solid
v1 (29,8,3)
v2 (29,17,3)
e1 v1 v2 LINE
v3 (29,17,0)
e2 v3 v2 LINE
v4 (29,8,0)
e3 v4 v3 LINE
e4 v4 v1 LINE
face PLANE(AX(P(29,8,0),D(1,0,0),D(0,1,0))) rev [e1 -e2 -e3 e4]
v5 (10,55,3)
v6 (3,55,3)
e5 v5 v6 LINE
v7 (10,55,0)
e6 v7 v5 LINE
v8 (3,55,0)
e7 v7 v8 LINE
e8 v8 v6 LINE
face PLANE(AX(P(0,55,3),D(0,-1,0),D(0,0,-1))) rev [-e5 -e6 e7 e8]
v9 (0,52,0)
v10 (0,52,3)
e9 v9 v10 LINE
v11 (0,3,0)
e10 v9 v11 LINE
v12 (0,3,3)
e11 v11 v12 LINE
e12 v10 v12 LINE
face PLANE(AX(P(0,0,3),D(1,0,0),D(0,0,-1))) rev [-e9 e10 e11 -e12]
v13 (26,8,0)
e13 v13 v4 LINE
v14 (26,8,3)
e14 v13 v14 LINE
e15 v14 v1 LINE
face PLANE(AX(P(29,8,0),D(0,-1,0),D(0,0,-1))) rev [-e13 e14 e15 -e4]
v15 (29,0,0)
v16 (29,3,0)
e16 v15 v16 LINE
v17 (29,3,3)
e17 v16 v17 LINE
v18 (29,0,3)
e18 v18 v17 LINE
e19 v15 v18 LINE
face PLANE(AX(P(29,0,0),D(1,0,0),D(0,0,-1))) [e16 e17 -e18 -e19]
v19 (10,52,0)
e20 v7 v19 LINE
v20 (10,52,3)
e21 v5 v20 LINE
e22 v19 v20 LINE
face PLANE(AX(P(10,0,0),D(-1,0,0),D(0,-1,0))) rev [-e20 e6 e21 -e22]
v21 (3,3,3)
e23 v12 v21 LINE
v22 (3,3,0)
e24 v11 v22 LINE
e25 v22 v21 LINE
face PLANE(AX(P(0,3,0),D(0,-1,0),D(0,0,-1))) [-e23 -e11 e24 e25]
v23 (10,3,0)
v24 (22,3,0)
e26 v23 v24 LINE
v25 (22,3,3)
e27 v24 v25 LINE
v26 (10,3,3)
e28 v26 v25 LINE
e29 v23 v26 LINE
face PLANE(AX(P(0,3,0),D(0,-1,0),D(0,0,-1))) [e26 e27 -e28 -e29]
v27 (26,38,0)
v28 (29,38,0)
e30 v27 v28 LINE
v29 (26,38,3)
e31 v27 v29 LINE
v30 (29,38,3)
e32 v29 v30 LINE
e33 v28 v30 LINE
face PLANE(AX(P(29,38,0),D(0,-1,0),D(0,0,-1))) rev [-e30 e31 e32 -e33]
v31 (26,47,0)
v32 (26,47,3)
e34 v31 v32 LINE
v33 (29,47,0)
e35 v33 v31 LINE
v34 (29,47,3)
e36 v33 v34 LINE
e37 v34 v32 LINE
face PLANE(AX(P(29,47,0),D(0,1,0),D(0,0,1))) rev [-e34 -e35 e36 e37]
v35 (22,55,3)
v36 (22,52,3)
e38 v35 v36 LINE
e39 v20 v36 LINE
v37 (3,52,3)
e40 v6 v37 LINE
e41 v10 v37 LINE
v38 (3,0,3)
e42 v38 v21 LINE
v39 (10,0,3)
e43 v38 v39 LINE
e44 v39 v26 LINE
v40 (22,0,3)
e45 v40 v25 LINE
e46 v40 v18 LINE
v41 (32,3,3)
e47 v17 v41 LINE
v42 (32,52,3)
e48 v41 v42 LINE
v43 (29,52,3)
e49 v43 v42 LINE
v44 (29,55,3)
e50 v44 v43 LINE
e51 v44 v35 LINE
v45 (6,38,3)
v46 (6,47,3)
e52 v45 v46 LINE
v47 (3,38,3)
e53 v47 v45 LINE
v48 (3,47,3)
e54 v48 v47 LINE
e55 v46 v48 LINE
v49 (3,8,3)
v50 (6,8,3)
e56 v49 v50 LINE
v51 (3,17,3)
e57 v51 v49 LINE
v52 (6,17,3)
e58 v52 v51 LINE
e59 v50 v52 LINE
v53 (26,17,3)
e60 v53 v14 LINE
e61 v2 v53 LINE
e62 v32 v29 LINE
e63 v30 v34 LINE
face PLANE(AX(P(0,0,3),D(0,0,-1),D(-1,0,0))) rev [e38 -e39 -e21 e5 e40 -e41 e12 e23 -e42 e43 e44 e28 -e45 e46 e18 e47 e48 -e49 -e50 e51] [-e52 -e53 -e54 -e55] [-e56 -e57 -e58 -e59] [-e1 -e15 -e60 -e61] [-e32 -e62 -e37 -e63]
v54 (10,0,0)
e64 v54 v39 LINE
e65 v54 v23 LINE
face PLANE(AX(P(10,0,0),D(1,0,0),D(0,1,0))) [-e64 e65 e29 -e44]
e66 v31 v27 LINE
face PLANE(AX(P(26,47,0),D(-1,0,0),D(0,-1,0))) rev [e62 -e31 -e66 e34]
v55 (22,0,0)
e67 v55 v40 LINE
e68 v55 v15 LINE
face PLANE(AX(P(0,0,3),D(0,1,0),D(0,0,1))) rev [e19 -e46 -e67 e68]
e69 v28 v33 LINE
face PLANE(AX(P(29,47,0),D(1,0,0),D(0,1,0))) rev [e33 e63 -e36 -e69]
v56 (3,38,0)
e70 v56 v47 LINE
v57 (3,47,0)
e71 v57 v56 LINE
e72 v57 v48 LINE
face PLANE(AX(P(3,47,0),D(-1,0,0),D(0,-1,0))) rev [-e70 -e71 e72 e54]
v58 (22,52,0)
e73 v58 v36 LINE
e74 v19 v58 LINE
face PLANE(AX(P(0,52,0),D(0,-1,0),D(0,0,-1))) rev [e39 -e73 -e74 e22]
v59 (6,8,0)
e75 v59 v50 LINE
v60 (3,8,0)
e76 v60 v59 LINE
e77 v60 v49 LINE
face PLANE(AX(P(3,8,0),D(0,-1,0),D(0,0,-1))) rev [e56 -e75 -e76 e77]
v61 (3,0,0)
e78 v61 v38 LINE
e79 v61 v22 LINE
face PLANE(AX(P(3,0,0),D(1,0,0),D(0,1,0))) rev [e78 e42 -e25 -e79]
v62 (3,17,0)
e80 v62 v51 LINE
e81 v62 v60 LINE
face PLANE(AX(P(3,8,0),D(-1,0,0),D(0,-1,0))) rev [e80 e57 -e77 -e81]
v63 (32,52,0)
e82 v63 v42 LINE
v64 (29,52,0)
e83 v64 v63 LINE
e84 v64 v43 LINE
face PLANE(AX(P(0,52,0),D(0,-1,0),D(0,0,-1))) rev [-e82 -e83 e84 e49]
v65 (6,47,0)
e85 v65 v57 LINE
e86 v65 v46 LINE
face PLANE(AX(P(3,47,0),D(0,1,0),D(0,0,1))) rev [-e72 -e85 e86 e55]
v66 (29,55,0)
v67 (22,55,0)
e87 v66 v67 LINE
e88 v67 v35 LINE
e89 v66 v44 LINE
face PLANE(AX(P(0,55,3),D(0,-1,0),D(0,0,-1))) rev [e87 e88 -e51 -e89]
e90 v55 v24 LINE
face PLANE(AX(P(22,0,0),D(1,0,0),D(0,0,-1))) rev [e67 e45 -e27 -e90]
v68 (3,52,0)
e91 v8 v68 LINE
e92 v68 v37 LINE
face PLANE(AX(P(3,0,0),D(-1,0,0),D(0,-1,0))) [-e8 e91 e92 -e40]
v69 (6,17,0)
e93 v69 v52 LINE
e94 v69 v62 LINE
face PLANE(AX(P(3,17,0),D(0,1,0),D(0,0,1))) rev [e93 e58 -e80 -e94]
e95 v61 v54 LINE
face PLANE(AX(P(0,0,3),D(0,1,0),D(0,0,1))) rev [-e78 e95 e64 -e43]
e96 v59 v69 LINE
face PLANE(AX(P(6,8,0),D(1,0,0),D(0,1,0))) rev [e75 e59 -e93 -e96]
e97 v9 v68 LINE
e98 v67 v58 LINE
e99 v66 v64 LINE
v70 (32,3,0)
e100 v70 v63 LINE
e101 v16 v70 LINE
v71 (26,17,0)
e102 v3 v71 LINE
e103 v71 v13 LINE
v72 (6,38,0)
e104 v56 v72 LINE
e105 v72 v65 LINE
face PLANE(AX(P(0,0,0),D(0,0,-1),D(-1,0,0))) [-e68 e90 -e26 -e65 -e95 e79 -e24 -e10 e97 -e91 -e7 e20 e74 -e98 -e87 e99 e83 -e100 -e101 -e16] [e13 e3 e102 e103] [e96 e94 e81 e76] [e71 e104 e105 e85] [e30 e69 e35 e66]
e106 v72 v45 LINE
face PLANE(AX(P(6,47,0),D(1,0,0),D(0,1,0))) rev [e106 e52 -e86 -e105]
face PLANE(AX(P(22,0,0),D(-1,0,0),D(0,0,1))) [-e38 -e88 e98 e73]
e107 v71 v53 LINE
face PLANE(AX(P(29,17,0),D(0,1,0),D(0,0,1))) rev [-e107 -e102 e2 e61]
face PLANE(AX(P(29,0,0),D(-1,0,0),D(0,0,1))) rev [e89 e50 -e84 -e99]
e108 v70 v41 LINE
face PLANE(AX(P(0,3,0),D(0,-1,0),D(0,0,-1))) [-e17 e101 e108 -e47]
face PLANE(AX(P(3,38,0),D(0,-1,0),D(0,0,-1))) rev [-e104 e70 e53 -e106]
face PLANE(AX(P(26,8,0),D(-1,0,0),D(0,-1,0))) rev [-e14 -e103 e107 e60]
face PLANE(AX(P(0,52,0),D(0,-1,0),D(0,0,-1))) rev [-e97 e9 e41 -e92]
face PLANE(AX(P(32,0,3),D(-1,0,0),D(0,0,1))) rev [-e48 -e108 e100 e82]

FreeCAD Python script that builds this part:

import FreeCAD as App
import Part
import Sketcher

V = App.Vector
Q = App.Units.Quantity


def add_polygon(sketch, points):
    """Adds a closed chain of lines whose ends are joined by coincident constraints."""
    first, n = sketch.GeometryCount, len(points)
    for a, b in zip(points, points[1:] + points[:1]):
        sketch.addGeometry(Part.LineSegment(App.Vector(*a, 0), App.Vector(*b, 0)), False)
    for i in range(n):
        sketch.addConstraint(Sketcher.Constraint("Coincident", first + i, 2, first + (i + 1) % n, 1))

doc = App.newDocument("Part")
body = doc.addObject("PartDesign::Body", "Body")

sketch1 = body.newObject("Sketcher::SketchObject", "Sketch")
sketch1.AttachmentSupport = (doc.getObject("XY_Plane"), [""])
sketch1.MapMode = "FlatFace"
add_polygon(sketch1, [(0, 55), (0, 0), (32, 0), (32, 55)])
sketch1.addConstraint(Sketcher.Constraint("Vertical", 0))
sketch1.addConstraint(Sketcher.Constraint("Horizontal", 1))
sketch1.addConstraint(Sketcher.Constraint("Vertical", 2))
sketch1.addConstraint(Sketcher.Constraint("Horizontal", 3))
sketch1.addConstraint(Sketcher.Constraint("Coincident", 0, 2, -1, 1))
sketch1.addConstraint(Sketcher.Constraint("DistanceX", 1, 1, 1, 2, Q("32 mm")))
sketch1.addConstraint(Sketcher.Constraint("DistanceY", 0, 2, 0, 1, Q("55 mm")))
pad1 = body.newObject("PartDesign::Pad", "Pad")
pad1.Profile = sketch1
pad1.Length = 3

sketch2 = body.newObject("Sketcher::SketchObject", "Sketch001")
sketch2.AttachmentSupport = (doc.getObject("XY_Plane"), [""])
sketch2.MapMode = "FlatFace"
sketch2.AttachmentOffset = App.Placement(V(0, 0, 3), App.Rotation())
add_polygon(sketch2, [(0, 55), (0, 52), (3, 52), (3, 55)])
add_polygon(sketch2, [(10, 55), (10, 52), (22, 52), (22, 55)])
add_polygon(sketch2, [(29, 55), (29, 52), (32, 52), (32, 55)])
add_polygon(sketch2, [(0, 3), (0, 0), (3, 0), (3, 3)])
add_polygon(sketch2, [(10, 3), (10, 0), (22, 0), (22, 3)])
add_polygon(sketch2, [(29, 3), (29, 0), (32, 0), (32, 3)])
sketch2.addConstraint(Sketcher.Constraint("Vertical", 0))
sketch2.addConstraint(Sketcher.Constraint("Horizontal", 1))
sketch2.addConstraint(Sketcher.Constraint("Vertical", 2))
sketch2.addConstraint(Sketcher.Constraint("Horizontal", 3))
sketch2.addConstraint(Sketcher.Constraint("Vertical", 4))
sketch2.addConstraint(Sketcher.Constraint("Horizontal", 5))
sketch2.addConstraint(Sketcher.Constraint("Vertical", 6))
sketch2.addConstraint(Sketcher.Constraint("Horizontal", 7))
sketch2.addConstraint(Sketcher.Constraint("Vertical", 8))
sketch2.addConstraint(Sketcher.Constraint("Horizontal", 9))
sketch2.addConstraint(Sketcher.Constraint("Vertical", 10))
sketch2.addConstraint(Sketcher.Constraint("Horizontal", 11))
sketch2.addConstraint(Sketcher.Constraint("Vertical", 12))
sketch2.addConstraint(Sketcher.Constraint("Horizontal", 13))
sketch2.addConstraint(Sketcher.Constraint("Vertical", 14))
sketch2.addConstraint(Sketcher.Constraint("Horizontal", 15))
sketch2.addConstraint(Sketcher.Constraint("Vertical", 16))
sketch2.addConstraint(Sketcher.Constraint("Horizontal", 17))
sketch2.addConstraint(Sketcher.Constraint("Vertical", 18))
sketch2.addConstraint(Sketcher.Constraint("Horizontal", 19))
sketch2.addConstraint(Sketcher.Constraint("Vertical", 20))
sketch2.addConstraint(Sketcher.Constraint("Horizontal", 21))
sketch2.addConstraint(Sketcher.Constraint("Vertical", 22))
sketch2.addConstraint(Sketcher.Constraint("Horizontal", 23))
sketch2.addConstraint(Sketcher.Constraint("Coincident", 12, 2, -1, 1))
sketch2.addConstraint(Sketcher.Constraint("PointOnObject", 0, 2, -2))
sketch2.addConstraint(Sketcher.Constraint("PointOnObject", 16, 2, -1))
sketch2.addConstraint(Sketcher.Constraint("PointOnObject", 20, 2, -1))
sketch2.addConstraint(Sketcher.Constraint("Horizontal", 1, 2, 4, 2))
sketch2.addConstraint(Sketcher.Constraint("Horizontal", 3, 2, 6, 2))
sketch2.addConstraint(Sketcher.Constraint("Horizontal", 5, 2, 8, 2))
sketch2.addConstraint(Sketcher.Constraint("Horizontal", 7, 2, 10, 2))
sketch2.addConstraint(Sketcher.Constraint("Horizontal", 15, 2, 18, 2))
sketch2.addConstraint(Sketcher.Constraint("Horizontal", 19, 2, 22, 2))
sketch2.addConstraint(Sketcher.Constraint("Vertical", 2, 2, 13, 2))
sketch2.addConstraint(Sketcher.Constraint("Vertical", 7, 2, 16, 2))
sketch2.addConstraint(Sketcher.Constraint("Vertical", 6, 2, 17, 2))
sketch2.addConstraint(Sketcher.Constraint("Vertical", 11, 2, 20, 2))
sketch2.addConstraint(Sketcher.Constraint("Vertical", 10, 2, 21, 2))
sketch2.addConstraint(Sketcher.Constraint("Equal", 3, 9))
sketch2.addConstraint(Sketcher.Constraint("Equal", 23, 0))
sketch2.addConstraint(Sketcher.Constraint("Equal", 10, 12))
sketch2.addConstraint(Sketcher.Constraint("DistanceX", 1, 1, 1, 2, Q("3 mm")))
sketch2.addConstraint(Sketcher.Constraint("DistanceX", 5, 1, 5, 2, Q("12 mm")))
sketch2.addConstraint(Sketcher.Constraint("DistanceY", -1, 1, 0, 2, Q("52 mm")))
sketch2.addConstraint(Sketcher.Constraint("DistanceX", -1, 1, 4, 2, Q("10 mm")))
sketch2.addConstraint(Sketcher.Constraint("DistanceX", -1, 1, 8, 2, Q("29 mm")))
pocket1 = body.newObject("PartDesign::Pocket", "Pocket")
pocket1.Profile = sketch2
pocket1.Type = "ThroughAll"

sketch3 = body.newObject("Sketcher::SketchObject", "Sketch002")
sketch3.AttachmentSupport = (doc.getObject("XY_Plane"), [""])
sketch3.MapMode = "FlatFace"
sketch3.AttachmentOffset = App.Placement(V(0, 0, 3), App.Rotation())
add_polygon(sketch3, [(3, 47), (3, 38), (6, 38), (6, 47)])
add_polygon(sketch3, [(26, 47), (26, 38), (29, 38), (29, 47)])
add_polygon(sketch3, [(26, 17), (26, 8), (29, 8), (29, 17)])
add_polygon(sketch3, [(3, 17), (3, 8), (6, 8), (6, 17)])
sketch3.addConstraint(Sketcher.Constraint("Vertical", 0))
sketch3.addConstraint(Sketcher.Constraint("Horizontal", 1))
sketch3.addConstraint(Sketcher.Constraint("Vertical", 2))
sketch3.addConstraint(Sketcher.Constraint("Horizontal", 3))
sketch3.addConstraint(Sketcher.Constraint("Vertical", 4))
sketch3.addConstraint(Sketcher.Constraint("Horizontal", 5))
sketch3.addConstraint(Sketcher.Constraint("Vertical", 6))
sketch3.addConstraint(Sketcher.Constraint("Horizontal", 7))
sketch3.addConstraint(Sketcher.Constraint("Vertical", 8))
sketch3.addConstraint(Sketcher.Constraint("Horizontal", 9))
sketch3.addConstraint(Sketcher.Constraint("Vertical", 10))
sketch3.addConstraint(Sketcher.Constraint("Horizontal", 11))
sketch3.addConstraint(Sketcher.Constraint("Vertical", 12))
sketch3.addConstraint(Sketcher.Constraint("Horizontal", 13))
sketch3.addConstraint(Sketcher.Constraint("Vertical", 14))
sketch3.addConstraint(Sketcher.Constraint("Horizontal", 15))
sketch3.addConstraint(Sketcher.Constraint("Horizontal", 1, 2, 4, 2))
sketch3.addConstraint(Sketcher.Constraint("Horizontal", 3, 2, 6, 2))
sketch3.addConstraint(Sketcher.Constraint("Horizontal", 9, 2, 12, 2))
sketch3.addConstraint(Sketcher.Constraint("Horizontal", 11, 2, 14, 2))
sketch3.addConstraint(Sketcher.Constraint("Vertical", 7, 2, 8, 2))
sketch3.addConstraint(Sketcher.Constraint("Vertical", 6, 2, 9, 2))
sketch3.addConstraint(Sketcher.Constraint("Vertical", 3, 2, 12, 2))
sketch3.addConstraint(Sketcher.Constraint("Vertical", 2, 2, 13, 2))
sketch3.addConstraint(Sketcher.Constraint("Equal", 3, 5))
sketch3.addConstraint(Sketcher.Constraint("Equal", 6, 8))
sketch3.addConstraint(Sketcher.Constraint("DistanceX", 1, 1, 1, 2, Q("3 mm")))
sketch3.addConstraint(Sketcher.Constraint("DistanceY", 0, 2, 0, 1, Q("9 mm")))
sketch3.addConstraint(Sketcher.Constraint("DistanceX", -1, 1, 0, 2, Q("3 mm")))
sketch3.addConstraint(Sketcher.Constraint("DistanceY", -1, 1, 0, 2, Q("38 mm")))
sketch3.addConstraint(Sketcher.Constraint("DistanceX", -1, 1, 4, 2, Q("26 mm")))
sketch3.addConstraint(Sketcher.Constraint("DistanceY", -1, 1, 8, 2, Q("8 mm")))
pocket2 = body.newObject("PartDesign::Pocket", "Pocket001")
pocket2.Profile = sketch3
pocket2.Type = "ThroughAll"

doc.recompute()
